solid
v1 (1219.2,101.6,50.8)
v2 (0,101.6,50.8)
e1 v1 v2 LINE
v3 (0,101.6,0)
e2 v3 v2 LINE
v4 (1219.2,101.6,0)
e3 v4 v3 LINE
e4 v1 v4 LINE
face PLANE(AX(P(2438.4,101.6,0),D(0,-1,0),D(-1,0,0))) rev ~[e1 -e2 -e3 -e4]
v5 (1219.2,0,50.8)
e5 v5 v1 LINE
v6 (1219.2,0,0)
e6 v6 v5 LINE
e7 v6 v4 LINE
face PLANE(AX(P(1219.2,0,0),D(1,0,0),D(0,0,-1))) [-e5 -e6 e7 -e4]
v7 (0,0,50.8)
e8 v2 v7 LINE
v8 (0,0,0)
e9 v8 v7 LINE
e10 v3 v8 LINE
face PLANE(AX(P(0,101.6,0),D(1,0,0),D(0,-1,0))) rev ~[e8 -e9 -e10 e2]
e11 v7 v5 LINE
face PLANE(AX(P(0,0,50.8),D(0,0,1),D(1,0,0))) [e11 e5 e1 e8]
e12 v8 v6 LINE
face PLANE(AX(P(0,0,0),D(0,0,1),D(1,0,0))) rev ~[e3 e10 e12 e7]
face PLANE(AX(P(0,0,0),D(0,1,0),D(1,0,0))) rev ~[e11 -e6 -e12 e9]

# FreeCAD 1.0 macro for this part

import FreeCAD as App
import Part
import Sketcher

V = App.Vector
Q = App.Units.Quantity

doc = App.newDocument("Part")
params = doc.addObject("Spreadsheet::Sheet", "Params")
for row, (alias, value) in enumerate([
    ("sketch1_width", "96 in"),
    ("sketch1_height", "4 in"),
    ("pad1_length", "2 in"),
    ("sketch2_width", "4 in"),
    ("sketch2_height", "2 in"),
    ("pocket1_length", "48 in"),
], start=1):
    params.set(f"A{row}", alias)
    params.set(f"B{row}", "=" + value)
    params.setAlias(f"B{row}", alias)

body = doc.addObject("PartDesign::Body", "Body")

sketch1 = body.newObject("Sketcher::SketchObject", "Sketch")
sketch1.AttachmentSupport = (doc.getObject("XY_Plane"), [""])
sketch1.MapMode = "FlatFace"
sketch1.addGeometry(Part.LineSegment(V(0, 102, 0), V(0, 0, 0)), False)
sketch1.addGeometry(Part.LineSegment(V(0, 0, 0), V(2438, 0, 0)), False)
sketch1.addGeometry(Part.LineSegment(V(2438, 0, 0), V(2438, 102, 0)), False)
sketch1.addGeometry(Part.LineSegment(V(2438, 102, 0), V(0, 102, 0)), False)
sketch1.addConstraint(Sketcher.Constraint("Coincident", 0, 2, 1, 1))
sketch1.addConstraint(Sketcher.Constraint("Coincident", 1, 2, 2, 1))
sketch1.addConstraint(Sketcher.Constraint("Coincident", 2, 2, 3, 1))
sketch1.addConstraint(Sketcher.Constraint("Coincident", 3, 2, 0, 1))
sketch1.addConstraint(Sketcher.Constraint("Vertical", 0))
sketch1.addConstraint(Sketcher.Constraint("Horizontal", 1))
sketch1.addConstraint(Sketcher.Constraint("Vertical", 2))
sketch1.addConstraint(Sketcher.Constraint("Horizontal", 3))
sketch1.addConstraint(Sketcher.Constraint("Coincident", 0, 2, -1, 1))
sketch1.addConstraint(Sketcher.Constraint("DistanceX", 1, 1, 1, 2, Q("96 in")))
sketch1.addConstraint(Sketcher.Constraint("DistanceY", 0, 2, 0, 1, Q("4 in")))
sketch1.setExpression("Constraints[9]", "Params.sketch1_width")
sketch1.setExpression("Constraints[10]", "Params.sketch1_height")
pad1 = body.newObject("PartDesign::Pad", "Pad")
pad1.Profile = sketch1
pad1.setExpression("Length", "Params.pad1_length")

sketch2 = body.newObject("Sketcher::SketchObject", "Sketch001")
sketch2.AttachmentSupport = (doc.getObject("YZ_Plane"), [""])
sketch2.MapMode = "FlatFace"
sketch2.AttachmentOffset = App.Placement(V(0, 0, 96 * 25.4), App.Rotation())
sketch2.addGeometry(Part.LineSegment(V(0, 51, 0), V(0, 0, 0)), False)
sketch2.addGeometry(Part.LineSegment(V(0, 0, 0), V(102, 0, 0)), False)
sketch2.addGeometry(Part.LineSegment(V(102, 0, 0), V(102, 51, 0)), False)
sketch2.addGeometry(Part.LineSegment(V(102, 51, 0), V(0, 51, 0)), False)
sketch2.addConstraint(Sketcher.Constraint("Coincident", 0, 2, 1, 1))
sketch2.addConstraint(Sketcher.Constraint("Coincident", 1, 2, 2, 1))
sketch2.addConstraint(Sketcher.Constraint("Coincident", 2, 2, 3, 1))
sketch2.addConstraint(Sketcher.Constraint("Coincident", 3, 2, 0, 1))
sketch2.addConstraint(Sketcher.Constraint("Vertical", 0))
sketch2.addConstraint(Sketcher.Constraint("Horizontal", 1))
sketch2.addConstraint(Sketcher.Constraint("Vertical", 2))
sketch2.addConstraint(Sketcher.Constraint("Horizontal", 3))
sketch2.addConstraint(Sketcher.Constraint("Coincident", 0, 2, -1, 1))
sketch2.addConstraint(Sketcher.Constraint("DistanceX", 1, 1, 1, 2, Q("4 in")))
sketch2.addConstraint(Sketcher.Constraint("DistanceY", 0, 2, 0, 1, Q("2 in")))
sketch2.setExpression("Constraints[9]", "Params.sketch2_width")
sketch2.setExpression("Constraints[10]", "Params.sketch2_height")
pocket1 = body.newObject("PartDesign::Pocket", "Pocket")
pocket1.Profile = sketch2
pocket1.setExpression("Length", "Params.pocket1_length")

doc.recompute()
